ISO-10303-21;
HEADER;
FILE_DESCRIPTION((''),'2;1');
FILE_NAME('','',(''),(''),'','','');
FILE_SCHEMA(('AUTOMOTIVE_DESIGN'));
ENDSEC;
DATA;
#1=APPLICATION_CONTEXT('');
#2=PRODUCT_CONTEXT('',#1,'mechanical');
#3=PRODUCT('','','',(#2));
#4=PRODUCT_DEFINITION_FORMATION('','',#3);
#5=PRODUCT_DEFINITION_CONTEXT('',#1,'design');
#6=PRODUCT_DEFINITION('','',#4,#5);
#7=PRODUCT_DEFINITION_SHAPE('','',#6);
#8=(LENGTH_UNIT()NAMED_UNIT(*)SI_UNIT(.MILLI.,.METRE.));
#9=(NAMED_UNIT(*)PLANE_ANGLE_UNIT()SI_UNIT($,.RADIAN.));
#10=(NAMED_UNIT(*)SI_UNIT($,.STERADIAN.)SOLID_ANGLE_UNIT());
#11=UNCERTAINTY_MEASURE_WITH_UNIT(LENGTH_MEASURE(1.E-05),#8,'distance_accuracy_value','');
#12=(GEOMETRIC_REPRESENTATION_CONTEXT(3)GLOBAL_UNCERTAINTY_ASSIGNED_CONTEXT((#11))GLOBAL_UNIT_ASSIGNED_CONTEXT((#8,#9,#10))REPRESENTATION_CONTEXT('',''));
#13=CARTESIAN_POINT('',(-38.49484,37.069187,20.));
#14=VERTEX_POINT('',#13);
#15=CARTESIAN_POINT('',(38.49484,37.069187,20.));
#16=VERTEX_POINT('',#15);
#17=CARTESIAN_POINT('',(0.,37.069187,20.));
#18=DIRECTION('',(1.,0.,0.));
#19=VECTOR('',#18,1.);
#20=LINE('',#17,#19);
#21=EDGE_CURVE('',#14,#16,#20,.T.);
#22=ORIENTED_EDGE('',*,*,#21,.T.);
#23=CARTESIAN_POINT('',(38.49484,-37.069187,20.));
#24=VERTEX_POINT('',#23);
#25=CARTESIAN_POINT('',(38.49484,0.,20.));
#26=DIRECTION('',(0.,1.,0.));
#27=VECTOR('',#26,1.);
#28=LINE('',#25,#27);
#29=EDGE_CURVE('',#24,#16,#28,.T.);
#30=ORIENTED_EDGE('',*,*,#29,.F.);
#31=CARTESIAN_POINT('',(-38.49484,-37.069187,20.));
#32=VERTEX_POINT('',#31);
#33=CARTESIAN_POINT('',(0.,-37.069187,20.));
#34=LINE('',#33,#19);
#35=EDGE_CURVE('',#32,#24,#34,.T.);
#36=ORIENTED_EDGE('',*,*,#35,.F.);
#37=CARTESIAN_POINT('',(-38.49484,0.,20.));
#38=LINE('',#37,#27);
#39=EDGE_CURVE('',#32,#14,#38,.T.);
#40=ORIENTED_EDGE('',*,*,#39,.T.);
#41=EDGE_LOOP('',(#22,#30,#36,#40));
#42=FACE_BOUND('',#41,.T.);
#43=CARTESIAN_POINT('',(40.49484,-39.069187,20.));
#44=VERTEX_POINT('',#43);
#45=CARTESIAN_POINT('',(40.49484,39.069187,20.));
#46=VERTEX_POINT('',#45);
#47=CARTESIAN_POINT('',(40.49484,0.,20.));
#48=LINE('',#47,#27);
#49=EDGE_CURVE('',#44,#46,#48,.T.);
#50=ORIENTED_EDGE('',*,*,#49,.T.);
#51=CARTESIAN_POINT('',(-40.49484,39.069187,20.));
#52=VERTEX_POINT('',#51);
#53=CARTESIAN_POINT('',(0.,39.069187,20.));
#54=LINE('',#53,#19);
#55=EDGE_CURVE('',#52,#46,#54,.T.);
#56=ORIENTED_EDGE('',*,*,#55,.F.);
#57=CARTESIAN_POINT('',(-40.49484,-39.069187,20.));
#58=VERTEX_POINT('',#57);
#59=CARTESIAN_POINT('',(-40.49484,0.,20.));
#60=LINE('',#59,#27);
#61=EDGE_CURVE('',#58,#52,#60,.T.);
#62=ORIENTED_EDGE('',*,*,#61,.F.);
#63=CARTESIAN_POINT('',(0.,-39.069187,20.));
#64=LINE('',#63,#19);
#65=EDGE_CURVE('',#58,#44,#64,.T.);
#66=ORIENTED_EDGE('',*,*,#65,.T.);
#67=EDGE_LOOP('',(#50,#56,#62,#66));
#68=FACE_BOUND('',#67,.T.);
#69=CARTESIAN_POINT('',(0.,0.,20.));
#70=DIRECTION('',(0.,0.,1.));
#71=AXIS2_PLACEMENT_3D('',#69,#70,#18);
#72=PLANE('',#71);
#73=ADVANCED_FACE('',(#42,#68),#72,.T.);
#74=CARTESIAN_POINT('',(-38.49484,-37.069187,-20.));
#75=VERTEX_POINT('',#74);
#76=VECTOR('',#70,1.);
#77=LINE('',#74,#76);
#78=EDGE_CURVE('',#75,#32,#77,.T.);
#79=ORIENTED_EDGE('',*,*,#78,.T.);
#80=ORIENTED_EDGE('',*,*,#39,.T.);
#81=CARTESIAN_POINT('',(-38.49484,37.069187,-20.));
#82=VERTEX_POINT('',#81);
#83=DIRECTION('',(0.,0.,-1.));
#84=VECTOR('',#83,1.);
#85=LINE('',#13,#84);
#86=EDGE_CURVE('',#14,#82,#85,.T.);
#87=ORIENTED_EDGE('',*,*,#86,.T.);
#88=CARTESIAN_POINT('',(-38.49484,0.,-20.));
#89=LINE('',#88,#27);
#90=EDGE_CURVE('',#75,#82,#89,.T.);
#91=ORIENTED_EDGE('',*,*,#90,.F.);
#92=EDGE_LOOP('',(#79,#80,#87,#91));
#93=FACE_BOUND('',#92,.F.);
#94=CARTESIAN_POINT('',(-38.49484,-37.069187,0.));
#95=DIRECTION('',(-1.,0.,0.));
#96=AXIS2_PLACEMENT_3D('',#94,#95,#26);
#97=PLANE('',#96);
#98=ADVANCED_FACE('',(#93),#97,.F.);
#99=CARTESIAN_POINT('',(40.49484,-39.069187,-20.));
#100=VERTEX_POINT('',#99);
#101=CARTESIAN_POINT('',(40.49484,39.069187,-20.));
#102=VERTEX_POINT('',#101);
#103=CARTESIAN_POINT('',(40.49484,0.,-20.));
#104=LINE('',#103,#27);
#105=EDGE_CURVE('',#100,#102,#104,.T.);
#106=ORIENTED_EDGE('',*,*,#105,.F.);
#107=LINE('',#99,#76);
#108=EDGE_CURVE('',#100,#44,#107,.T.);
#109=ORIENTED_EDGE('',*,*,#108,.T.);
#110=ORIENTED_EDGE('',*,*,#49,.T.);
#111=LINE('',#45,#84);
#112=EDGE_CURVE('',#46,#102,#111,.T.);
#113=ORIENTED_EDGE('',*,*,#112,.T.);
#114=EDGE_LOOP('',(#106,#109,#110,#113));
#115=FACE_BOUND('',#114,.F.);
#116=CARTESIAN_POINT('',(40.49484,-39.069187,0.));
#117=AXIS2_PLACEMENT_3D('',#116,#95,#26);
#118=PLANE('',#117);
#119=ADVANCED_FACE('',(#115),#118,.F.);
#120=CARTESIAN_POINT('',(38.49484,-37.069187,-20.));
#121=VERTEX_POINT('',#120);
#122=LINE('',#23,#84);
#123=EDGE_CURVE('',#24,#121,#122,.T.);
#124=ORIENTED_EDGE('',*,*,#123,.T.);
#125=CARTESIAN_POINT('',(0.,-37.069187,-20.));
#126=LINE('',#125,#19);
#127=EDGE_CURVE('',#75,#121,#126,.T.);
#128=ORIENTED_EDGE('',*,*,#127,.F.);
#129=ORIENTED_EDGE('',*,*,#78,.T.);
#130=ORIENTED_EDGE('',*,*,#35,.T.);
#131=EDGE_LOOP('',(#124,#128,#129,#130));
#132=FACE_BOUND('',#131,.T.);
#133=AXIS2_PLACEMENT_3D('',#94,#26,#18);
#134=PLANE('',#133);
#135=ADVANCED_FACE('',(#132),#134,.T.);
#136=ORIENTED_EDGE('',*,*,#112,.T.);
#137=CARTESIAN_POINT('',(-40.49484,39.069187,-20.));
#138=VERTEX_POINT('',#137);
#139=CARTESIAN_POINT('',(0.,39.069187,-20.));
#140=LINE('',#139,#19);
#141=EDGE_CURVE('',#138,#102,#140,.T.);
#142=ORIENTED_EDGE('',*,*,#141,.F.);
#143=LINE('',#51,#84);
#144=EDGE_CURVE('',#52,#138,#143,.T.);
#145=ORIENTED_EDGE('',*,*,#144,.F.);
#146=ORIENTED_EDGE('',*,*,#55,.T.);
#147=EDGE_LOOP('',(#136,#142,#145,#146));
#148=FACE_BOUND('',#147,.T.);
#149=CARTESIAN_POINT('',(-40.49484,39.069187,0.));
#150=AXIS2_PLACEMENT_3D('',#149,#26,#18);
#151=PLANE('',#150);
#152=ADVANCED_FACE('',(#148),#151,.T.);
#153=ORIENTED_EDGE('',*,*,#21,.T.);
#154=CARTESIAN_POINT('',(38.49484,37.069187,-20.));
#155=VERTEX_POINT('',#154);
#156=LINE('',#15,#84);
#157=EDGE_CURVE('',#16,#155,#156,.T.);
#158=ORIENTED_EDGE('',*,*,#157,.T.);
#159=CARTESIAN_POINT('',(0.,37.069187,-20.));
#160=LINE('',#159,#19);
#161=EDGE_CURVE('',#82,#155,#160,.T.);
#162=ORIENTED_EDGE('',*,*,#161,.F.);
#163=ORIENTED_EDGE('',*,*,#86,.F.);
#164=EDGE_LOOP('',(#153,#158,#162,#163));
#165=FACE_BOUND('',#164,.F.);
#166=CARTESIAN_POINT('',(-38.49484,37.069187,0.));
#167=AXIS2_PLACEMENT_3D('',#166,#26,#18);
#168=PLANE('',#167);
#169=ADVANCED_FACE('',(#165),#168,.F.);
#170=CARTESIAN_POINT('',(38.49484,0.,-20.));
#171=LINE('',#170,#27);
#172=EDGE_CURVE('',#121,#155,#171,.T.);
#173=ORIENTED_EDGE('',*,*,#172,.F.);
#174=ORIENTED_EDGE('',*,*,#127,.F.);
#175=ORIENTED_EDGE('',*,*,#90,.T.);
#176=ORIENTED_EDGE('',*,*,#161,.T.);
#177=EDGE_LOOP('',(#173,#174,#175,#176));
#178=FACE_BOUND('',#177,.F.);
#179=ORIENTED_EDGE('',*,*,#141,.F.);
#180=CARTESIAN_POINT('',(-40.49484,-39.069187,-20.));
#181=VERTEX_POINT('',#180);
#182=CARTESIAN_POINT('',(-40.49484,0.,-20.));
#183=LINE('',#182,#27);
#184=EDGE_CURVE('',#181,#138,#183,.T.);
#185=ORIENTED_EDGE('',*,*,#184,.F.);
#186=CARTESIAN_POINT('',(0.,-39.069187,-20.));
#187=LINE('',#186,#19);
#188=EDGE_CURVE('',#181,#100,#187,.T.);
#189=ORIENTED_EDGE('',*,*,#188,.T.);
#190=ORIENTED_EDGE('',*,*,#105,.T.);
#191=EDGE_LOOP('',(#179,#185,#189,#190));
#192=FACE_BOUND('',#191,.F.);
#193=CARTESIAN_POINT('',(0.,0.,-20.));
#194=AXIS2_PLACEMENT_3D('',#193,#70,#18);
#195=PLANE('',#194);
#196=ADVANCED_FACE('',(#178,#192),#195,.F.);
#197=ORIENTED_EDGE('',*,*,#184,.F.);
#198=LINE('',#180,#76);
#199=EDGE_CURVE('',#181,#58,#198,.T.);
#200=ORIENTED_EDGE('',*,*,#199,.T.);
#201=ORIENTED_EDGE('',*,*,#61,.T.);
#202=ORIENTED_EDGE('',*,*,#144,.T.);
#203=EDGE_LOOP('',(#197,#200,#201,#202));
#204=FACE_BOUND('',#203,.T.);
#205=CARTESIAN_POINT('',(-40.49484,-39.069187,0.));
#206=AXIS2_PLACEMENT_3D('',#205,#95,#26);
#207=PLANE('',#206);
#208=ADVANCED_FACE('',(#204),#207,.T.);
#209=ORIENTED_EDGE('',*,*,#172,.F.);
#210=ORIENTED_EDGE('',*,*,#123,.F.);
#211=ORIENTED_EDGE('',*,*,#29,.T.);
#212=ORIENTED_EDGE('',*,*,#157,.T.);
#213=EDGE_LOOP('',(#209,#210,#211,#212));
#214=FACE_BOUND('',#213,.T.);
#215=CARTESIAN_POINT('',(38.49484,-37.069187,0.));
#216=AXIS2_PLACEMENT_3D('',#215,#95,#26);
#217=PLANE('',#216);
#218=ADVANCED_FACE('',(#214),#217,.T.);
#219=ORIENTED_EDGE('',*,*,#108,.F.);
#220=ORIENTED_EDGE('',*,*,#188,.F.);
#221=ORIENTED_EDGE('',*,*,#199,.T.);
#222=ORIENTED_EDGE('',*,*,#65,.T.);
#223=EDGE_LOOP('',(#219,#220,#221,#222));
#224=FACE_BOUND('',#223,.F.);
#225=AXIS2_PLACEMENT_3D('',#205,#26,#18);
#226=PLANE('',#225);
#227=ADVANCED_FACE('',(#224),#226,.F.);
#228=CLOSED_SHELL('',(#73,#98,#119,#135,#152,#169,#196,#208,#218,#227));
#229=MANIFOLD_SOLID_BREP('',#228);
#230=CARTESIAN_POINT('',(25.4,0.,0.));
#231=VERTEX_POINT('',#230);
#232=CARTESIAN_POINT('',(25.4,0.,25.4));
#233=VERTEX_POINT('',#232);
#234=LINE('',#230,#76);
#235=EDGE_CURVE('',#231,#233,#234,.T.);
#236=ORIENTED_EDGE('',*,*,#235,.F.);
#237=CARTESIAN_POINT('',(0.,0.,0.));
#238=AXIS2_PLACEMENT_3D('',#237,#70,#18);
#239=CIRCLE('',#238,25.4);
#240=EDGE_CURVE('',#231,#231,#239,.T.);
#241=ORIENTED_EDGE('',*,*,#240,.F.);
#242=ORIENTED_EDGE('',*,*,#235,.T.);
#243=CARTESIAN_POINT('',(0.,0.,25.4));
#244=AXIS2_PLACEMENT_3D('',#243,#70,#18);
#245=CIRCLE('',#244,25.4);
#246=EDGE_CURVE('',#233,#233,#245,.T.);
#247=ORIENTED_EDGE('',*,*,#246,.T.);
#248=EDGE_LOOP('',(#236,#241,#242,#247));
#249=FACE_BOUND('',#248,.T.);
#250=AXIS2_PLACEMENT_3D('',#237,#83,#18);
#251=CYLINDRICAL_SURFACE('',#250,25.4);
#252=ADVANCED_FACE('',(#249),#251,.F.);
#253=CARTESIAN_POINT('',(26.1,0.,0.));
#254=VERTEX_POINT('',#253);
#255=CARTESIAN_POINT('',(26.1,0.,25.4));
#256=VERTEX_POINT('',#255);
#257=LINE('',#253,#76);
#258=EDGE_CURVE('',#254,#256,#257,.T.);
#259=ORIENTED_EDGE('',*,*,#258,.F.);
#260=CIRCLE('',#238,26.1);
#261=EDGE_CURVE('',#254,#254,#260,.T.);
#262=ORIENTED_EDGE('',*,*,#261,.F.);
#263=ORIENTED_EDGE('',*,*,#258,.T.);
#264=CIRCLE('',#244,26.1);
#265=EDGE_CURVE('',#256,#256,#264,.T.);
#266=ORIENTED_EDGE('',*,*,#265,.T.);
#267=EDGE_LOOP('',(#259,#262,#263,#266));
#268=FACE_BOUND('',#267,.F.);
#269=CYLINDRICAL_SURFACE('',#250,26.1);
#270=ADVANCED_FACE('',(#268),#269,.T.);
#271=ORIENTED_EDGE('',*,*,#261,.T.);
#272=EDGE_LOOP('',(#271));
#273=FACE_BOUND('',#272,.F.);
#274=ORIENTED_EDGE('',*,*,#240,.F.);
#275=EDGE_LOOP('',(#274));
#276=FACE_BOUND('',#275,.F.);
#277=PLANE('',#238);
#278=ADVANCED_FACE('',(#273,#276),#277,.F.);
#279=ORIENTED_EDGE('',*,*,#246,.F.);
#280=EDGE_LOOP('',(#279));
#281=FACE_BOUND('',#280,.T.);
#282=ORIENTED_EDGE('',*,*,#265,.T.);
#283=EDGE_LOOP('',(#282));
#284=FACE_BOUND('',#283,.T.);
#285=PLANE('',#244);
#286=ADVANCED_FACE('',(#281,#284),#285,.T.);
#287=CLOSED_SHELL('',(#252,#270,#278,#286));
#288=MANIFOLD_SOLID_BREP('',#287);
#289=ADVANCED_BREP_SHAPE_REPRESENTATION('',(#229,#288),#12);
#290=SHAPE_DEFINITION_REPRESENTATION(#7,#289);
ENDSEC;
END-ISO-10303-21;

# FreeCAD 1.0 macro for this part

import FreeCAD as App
import Part
import Sketcher
Q = App.Units.Quantity

doc = App.newDocument("Part")
body = doc.addObject("PartDesign::Body", "Body")

# Sketch on XY plane
sketch1 = doc.addObject("Sketcher::SketchObject", "Sketch")
body.addObject(sketch1)
sketch1.AttachmentSupport = (doc.XY_Plane, [""])
sketch1.MapMode = "FlatFace"
sketch1.addGeometry(Part.LineSegment(App.Vector(-40.49484, 39.069187, 0), App.Vector(-40.49484, -39.069187, 0)), False)
sketch1.addGeometry(Part.LineSegment(App.Vector(-40.49484, -39.069187, 0), App.Vector(40.49484, -39.069187, 0)), False)
sketch1.addGeometry(Part.LineSegment(App.Vector(40.49484, -39.069187, 0), App.Vector(40.49484, 39.069187, 0)), False)
sketch1.addGeometry(Part.LineSegment(App.Vector(40.49484, 39.069187, 0), App.Vector(-40.49484, 39.069187, 0)), False)
sketch1.addGeometry(Part.LineSegment(App.Vector(38.49484, -37.069187, 0), App.Vector(-38.49484, -37.069187, 0)), False)
sketch1.addGeometry(Part.LineSegment(App.Vector(-38.49484, -37.069187, 0), App.Vector(-38.49484, 37.069187, 0)), False)
sketch1.addGeometry(Part.LineSegment(App.Vector(-38.49484, 37.069187, 0), App.Vector(38.49484, 37.069187, 0)), False)
sketch1.addGeometry(Part.LineSegment(App.Vector(38.49484, 37.069187, 0), App.Vector(38.49484, -37.069187, 0)), False)
sketch1.addConstraint(Sketcher.Constraint("Coincident", 0, 2, 1, 1))
sketch1.addConstraint(Sketcher.Constraint("Coincident", 1, 2, 2, 1))
sketch1.addConstraint(Sketcher.Constraint("Coincident", 2, 2, 3, 1))
sketch1.addConstraint(Sketcher.Constraint("Coincident", 3, 2, 0, 1))
sketch1.addConstraint(Sketcher.Constraint("Coincident", 4, 2, 5, 1))
sketch1.addConstraint(Sketcher.Constraint("Coincident", 5, 2, 6, 1))
sketch1.addConstraint(Sketcher.Constraint("Coincident", 6, 2, 7, 1))
sketch1.addConstraint(Sketcher.Constraint("Coincident", 7, 2, 4, 1))
sketch1.addConstraint(Sketcher.Constraint("Vertical", 0))
sketch1.addConstraint(Sketcher.Constraint("Horizontal", 1))
sketch1.addConstraint(Sketcher.Constraint("Vertical", 2))
sketch1.addConstraint(Sketcher.Constraint("Horizontal", 3))
sketch1.addConstraint(Sketcher.Constraint("Horizontal", 4))
sketch1.addConstraint(Sketcher.Constraint("Vertical", 5))
sketch1.addConstraint(Sketcher.Constraint("Horizontal", 6))
sketch1.addConstraint(Sketcher.Constraint("Vertical", 7))
sketch1.addConstraint(Sketcher.Constraint("Symmetric", 0, 2, 2, 2, -1, 1))
sketch1.addConstraint(Sketcher.Constraint("Symmetric", 4, 2, 6, 2, -1, 1))
sketch1.addConstraint(Sketcher.Constraint("DistanceX", 0, 2, 4, 2, Q("2 mm")))
sketch1.addConstraint(Sketcher.Constraint("DistanceY", 0, 2, 4, 2, Q("2 mm")))
sketch1.addConstraint(Sketcher.Constraint("DistanceX", 1, 1, 1, 2, Q("80.989681 mm")))
sketch1.addConstraint(Sketcher.Constraint("DistanceY", 0, 2, 0, 1, Q("78.138373 mm")))
pad1 = doc.addObject("PartDesign::Pad", "Pad")
body.addObject(pad1)
pad1.Profile = sketch1
pad1.Type = "TwoLengths"
pad1.Length = 20
pad1.Length2 = 20
pad1.Reversed = True
body2 = doc.addObject("PartDesign::Body", "Body001")

# Sketch on XY plane
sketch2 = doc.addObject("Sketcher::SketchObject", "Sketch001")
body2.addObject(sketch2)
sketch2.AttachmentSupport = (doc.getObject("XY_Plane001"), [""])
sketch2.MapMode = "FlatFace"
sketch2.addGeometry(Part.Circle(App.Vector(0, 0, 0), App.Vector(0, 0, 1), 26.1), False)
sketch2.addGeometry(Part.Circle(App.Vector(0, 0, 0), App.Vector(0, 0, 1), 25.4), False)
sketch2.addConstraint(Sketcher.Constraint("Coincident", 0, 3, -1, 1))
sketch2.addConstraint(Sketcher.Constraint("Coincident", 1, 3, -1, 1))
sketch2.addConstraint(Sketcher.Constraint("Diameter", 0, Q("52.2 mm")))
sketch2.addConstraint(Sketcher.Constraint("Diameter", 1, Q("50.8 mm")))
pad2 = doc.addObject("PartDesign::Pad", "Pad001")
body2.addObject(pad2)
pad2.Profile = sketch2
pad2.Length = 25.4

doc.recompute()
